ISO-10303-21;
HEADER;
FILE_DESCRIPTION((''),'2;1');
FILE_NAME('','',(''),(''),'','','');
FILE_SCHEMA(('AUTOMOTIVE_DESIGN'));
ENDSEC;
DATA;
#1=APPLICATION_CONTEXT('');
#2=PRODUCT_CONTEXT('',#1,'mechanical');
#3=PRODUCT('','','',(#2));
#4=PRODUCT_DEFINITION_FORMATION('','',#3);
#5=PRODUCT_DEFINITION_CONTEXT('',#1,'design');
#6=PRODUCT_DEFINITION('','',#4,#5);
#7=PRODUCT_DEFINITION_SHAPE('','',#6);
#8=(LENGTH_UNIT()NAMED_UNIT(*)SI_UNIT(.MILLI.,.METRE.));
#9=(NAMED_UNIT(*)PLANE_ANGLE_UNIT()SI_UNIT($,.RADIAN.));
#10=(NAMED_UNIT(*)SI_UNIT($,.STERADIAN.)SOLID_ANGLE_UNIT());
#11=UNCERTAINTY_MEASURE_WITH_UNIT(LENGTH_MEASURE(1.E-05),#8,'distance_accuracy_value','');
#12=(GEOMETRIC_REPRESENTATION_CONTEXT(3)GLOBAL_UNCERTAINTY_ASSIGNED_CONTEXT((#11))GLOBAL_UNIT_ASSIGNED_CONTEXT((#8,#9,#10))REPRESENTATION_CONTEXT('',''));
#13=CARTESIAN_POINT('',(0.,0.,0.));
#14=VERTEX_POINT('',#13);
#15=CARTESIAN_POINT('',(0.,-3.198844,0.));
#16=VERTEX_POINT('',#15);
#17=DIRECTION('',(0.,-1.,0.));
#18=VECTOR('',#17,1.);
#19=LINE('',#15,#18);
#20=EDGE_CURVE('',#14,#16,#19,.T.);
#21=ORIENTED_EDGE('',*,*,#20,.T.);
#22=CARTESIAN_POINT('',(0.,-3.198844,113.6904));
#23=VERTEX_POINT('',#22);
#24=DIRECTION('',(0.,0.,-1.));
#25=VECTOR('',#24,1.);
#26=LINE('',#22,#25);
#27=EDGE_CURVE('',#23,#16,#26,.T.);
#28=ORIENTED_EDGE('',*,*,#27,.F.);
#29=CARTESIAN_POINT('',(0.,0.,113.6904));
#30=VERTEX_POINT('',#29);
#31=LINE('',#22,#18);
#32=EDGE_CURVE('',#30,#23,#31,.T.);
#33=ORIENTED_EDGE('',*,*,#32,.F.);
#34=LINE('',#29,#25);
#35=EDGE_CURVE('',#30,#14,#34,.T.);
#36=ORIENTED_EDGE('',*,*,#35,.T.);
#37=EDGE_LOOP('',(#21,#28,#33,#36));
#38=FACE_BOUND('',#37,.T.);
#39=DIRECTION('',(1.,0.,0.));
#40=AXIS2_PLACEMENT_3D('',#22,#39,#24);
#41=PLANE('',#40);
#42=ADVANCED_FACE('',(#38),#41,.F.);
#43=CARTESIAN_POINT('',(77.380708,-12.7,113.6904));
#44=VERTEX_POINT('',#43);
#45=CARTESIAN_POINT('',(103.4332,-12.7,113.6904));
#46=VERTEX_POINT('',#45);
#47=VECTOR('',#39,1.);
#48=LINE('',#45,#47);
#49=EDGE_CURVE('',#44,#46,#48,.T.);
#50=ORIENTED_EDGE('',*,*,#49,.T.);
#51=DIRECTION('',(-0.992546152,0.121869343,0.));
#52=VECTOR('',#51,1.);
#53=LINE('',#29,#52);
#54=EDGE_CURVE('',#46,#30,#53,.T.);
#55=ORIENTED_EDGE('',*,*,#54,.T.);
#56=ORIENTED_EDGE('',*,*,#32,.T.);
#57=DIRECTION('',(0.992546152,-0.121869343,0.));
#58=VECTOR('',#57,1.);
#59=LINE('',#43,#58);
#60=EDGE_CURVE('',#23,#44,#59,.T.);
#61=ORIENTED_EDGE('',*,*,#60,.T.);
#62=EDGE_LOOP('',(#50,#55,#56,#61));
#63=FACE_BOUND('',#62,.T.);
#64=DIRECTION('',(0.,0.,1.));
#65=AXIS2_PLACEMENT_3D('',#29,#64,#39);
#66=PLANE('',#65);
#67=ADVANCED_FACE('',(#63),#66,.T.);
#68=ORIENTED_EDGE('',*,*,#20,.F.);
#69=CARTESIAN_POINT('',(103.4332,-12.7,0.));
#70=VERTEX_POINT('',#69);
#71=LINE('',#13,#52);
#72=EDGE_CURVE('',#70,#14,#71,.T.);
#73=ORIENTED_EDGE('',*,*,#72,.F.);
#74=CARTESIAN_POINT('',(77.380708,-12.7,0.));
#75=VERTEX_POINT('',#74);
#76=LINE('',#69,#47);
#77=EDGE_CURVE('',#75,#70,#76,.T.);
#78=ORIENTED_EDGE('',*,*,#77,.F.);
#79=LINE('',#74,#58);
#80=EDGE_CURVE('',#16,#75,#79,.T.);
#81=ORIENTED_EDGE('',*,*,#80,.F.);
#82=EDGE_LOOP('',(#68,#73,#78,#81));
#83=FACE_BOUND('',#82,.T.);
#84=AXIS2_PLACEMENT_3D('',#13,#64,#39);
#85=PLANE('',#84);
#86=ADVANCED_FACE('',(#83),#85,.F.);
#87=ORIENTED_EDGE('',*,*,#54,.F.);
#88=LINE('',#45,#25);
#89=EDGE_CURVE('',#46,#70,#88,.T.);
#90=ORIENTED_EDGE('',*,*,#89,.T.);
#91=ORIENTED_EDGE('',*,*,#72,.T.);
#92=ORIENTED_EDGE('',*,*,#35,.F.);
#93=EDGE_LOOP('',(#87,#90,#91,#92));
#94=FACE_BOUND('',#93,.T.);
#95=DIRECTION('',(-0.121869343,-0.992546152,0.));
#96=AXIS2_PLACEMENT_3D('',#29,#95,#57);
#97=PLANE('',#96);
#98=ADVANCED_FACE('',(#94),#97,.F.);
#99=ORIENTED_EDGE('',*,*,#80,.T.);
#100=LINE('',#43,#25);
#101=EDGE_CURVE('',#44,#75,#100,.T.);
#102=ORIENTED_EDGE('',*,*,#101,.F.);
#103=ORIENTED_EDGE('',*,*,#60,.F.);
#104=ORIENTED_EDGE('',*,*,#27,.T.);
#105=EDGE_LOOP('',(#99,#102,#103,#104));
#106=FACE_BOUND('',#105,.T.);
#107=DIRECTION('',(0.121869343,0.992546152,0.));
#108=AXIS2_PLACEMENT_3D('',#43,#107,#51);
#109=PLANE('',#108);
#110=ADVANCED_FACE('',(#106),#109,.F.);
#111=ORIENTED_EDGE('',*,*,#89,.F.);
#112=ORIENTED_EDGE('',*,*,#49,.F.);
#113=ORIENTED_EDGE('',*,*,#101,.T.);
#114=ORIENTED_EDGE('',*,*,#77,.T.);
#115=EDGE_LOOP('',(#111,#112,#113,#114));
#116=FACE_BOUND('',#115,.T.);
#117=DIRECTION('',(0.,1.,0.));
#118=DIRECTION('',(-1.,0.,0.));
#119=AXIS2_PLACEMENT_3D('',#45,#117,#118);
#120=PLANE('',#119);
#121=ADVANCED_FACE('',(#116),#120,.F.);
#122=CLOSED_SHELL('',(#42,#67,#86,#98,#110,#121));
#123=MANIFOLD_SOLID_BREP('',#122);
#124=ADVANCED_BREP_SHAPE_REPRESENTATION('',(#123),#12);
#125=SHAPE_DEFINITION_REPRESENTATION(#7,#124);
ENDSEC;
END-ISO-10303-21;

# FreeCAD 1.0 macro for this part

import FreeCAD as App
import Part
import Sketcher

V = App.Vector
Q = App.Units.Quantity

doc = App.newDocument("Part")
params = doc.addObject("Spreadsheet::Sheet", "Params")
for row, (alias, value) in enumerate([
    ("pad1_length", "4.476 in"),
], start=1):
    params.set(f"A{row}", alias)
    params.set(f"B{row}", "=" + value)
    params.setAlias(f"B{row}", alias)

body = doc.addObject("PartDesign::Body", "Body")

# Sketch on XY plane
sketch1 = body.newObject("Sketcher::SketchObject", "Sketch")
sketch1.AttachmentSupport = (doc.getObject("XY_Plane"), [""])
sketch1.MapMode = "FlatFace"
sketch1.addGeometry(Part.LineSegment(V(103.4, -12.7, 0), V(0, 0, 0)), False)
sketch1.addGeometry(Part.LineSegment(V(0, 0, 0), V(0, -3.2, 0)), False)
sketch1.addGeometry(Part.LineSegment(V(0, -3.2, 0), V(77.4, -12.7, 0)), False)
sketch1.addGeometry(Part.LineSegment(V(77.4, -12.7, 0), V(103.4, -12.7, 0)), False)
sketch1.addConstraint(Sketcher.Constraint("Coincident", 0, 2, 1, 1))
sketch1.addConstraint(Sketcher.Constraint("Coincident", 1, 2, 2, 1))
sketch1.addConstraint(Sketcher.Constraint("Coincident", 2, 2, 3, 1))
sketch1.addConstraint(Sketcher.Constraint("Coincident", 3, 2, 0, 1))
sketch1.addConstraint(Sketcher.Constraint("Vertical", 1))
sketch1.addConstraint(Sketcher.Constraint("Horizontal", 3))
sketch1.addConstraint(Sketcher.Constraint("Coincident", 0, 2, -1, 1))
sketch1.addConstraint(Sketcher.Constraint("Parallel", 0, 2))
sketch1.addConstraint(Sketcher.Constraint("Angle", 0, Q("173 deg")))
sketch1.addConstraint(Sketcher.Constraint("DistanceY", 2, 2, -1, 1, Q("0.5 in")))
sketch1.addConstraint(Sketcher.Constraint("DistanceX", 3, 1, 3, 2, Q("26.052491 mm")))
pad1 = body.newObject("PartDesign::Pad", "Pad")
pad1.Profile = sketch1
pad1.setExpression("Length", "Params.pad1_length")

doc.recompute()
